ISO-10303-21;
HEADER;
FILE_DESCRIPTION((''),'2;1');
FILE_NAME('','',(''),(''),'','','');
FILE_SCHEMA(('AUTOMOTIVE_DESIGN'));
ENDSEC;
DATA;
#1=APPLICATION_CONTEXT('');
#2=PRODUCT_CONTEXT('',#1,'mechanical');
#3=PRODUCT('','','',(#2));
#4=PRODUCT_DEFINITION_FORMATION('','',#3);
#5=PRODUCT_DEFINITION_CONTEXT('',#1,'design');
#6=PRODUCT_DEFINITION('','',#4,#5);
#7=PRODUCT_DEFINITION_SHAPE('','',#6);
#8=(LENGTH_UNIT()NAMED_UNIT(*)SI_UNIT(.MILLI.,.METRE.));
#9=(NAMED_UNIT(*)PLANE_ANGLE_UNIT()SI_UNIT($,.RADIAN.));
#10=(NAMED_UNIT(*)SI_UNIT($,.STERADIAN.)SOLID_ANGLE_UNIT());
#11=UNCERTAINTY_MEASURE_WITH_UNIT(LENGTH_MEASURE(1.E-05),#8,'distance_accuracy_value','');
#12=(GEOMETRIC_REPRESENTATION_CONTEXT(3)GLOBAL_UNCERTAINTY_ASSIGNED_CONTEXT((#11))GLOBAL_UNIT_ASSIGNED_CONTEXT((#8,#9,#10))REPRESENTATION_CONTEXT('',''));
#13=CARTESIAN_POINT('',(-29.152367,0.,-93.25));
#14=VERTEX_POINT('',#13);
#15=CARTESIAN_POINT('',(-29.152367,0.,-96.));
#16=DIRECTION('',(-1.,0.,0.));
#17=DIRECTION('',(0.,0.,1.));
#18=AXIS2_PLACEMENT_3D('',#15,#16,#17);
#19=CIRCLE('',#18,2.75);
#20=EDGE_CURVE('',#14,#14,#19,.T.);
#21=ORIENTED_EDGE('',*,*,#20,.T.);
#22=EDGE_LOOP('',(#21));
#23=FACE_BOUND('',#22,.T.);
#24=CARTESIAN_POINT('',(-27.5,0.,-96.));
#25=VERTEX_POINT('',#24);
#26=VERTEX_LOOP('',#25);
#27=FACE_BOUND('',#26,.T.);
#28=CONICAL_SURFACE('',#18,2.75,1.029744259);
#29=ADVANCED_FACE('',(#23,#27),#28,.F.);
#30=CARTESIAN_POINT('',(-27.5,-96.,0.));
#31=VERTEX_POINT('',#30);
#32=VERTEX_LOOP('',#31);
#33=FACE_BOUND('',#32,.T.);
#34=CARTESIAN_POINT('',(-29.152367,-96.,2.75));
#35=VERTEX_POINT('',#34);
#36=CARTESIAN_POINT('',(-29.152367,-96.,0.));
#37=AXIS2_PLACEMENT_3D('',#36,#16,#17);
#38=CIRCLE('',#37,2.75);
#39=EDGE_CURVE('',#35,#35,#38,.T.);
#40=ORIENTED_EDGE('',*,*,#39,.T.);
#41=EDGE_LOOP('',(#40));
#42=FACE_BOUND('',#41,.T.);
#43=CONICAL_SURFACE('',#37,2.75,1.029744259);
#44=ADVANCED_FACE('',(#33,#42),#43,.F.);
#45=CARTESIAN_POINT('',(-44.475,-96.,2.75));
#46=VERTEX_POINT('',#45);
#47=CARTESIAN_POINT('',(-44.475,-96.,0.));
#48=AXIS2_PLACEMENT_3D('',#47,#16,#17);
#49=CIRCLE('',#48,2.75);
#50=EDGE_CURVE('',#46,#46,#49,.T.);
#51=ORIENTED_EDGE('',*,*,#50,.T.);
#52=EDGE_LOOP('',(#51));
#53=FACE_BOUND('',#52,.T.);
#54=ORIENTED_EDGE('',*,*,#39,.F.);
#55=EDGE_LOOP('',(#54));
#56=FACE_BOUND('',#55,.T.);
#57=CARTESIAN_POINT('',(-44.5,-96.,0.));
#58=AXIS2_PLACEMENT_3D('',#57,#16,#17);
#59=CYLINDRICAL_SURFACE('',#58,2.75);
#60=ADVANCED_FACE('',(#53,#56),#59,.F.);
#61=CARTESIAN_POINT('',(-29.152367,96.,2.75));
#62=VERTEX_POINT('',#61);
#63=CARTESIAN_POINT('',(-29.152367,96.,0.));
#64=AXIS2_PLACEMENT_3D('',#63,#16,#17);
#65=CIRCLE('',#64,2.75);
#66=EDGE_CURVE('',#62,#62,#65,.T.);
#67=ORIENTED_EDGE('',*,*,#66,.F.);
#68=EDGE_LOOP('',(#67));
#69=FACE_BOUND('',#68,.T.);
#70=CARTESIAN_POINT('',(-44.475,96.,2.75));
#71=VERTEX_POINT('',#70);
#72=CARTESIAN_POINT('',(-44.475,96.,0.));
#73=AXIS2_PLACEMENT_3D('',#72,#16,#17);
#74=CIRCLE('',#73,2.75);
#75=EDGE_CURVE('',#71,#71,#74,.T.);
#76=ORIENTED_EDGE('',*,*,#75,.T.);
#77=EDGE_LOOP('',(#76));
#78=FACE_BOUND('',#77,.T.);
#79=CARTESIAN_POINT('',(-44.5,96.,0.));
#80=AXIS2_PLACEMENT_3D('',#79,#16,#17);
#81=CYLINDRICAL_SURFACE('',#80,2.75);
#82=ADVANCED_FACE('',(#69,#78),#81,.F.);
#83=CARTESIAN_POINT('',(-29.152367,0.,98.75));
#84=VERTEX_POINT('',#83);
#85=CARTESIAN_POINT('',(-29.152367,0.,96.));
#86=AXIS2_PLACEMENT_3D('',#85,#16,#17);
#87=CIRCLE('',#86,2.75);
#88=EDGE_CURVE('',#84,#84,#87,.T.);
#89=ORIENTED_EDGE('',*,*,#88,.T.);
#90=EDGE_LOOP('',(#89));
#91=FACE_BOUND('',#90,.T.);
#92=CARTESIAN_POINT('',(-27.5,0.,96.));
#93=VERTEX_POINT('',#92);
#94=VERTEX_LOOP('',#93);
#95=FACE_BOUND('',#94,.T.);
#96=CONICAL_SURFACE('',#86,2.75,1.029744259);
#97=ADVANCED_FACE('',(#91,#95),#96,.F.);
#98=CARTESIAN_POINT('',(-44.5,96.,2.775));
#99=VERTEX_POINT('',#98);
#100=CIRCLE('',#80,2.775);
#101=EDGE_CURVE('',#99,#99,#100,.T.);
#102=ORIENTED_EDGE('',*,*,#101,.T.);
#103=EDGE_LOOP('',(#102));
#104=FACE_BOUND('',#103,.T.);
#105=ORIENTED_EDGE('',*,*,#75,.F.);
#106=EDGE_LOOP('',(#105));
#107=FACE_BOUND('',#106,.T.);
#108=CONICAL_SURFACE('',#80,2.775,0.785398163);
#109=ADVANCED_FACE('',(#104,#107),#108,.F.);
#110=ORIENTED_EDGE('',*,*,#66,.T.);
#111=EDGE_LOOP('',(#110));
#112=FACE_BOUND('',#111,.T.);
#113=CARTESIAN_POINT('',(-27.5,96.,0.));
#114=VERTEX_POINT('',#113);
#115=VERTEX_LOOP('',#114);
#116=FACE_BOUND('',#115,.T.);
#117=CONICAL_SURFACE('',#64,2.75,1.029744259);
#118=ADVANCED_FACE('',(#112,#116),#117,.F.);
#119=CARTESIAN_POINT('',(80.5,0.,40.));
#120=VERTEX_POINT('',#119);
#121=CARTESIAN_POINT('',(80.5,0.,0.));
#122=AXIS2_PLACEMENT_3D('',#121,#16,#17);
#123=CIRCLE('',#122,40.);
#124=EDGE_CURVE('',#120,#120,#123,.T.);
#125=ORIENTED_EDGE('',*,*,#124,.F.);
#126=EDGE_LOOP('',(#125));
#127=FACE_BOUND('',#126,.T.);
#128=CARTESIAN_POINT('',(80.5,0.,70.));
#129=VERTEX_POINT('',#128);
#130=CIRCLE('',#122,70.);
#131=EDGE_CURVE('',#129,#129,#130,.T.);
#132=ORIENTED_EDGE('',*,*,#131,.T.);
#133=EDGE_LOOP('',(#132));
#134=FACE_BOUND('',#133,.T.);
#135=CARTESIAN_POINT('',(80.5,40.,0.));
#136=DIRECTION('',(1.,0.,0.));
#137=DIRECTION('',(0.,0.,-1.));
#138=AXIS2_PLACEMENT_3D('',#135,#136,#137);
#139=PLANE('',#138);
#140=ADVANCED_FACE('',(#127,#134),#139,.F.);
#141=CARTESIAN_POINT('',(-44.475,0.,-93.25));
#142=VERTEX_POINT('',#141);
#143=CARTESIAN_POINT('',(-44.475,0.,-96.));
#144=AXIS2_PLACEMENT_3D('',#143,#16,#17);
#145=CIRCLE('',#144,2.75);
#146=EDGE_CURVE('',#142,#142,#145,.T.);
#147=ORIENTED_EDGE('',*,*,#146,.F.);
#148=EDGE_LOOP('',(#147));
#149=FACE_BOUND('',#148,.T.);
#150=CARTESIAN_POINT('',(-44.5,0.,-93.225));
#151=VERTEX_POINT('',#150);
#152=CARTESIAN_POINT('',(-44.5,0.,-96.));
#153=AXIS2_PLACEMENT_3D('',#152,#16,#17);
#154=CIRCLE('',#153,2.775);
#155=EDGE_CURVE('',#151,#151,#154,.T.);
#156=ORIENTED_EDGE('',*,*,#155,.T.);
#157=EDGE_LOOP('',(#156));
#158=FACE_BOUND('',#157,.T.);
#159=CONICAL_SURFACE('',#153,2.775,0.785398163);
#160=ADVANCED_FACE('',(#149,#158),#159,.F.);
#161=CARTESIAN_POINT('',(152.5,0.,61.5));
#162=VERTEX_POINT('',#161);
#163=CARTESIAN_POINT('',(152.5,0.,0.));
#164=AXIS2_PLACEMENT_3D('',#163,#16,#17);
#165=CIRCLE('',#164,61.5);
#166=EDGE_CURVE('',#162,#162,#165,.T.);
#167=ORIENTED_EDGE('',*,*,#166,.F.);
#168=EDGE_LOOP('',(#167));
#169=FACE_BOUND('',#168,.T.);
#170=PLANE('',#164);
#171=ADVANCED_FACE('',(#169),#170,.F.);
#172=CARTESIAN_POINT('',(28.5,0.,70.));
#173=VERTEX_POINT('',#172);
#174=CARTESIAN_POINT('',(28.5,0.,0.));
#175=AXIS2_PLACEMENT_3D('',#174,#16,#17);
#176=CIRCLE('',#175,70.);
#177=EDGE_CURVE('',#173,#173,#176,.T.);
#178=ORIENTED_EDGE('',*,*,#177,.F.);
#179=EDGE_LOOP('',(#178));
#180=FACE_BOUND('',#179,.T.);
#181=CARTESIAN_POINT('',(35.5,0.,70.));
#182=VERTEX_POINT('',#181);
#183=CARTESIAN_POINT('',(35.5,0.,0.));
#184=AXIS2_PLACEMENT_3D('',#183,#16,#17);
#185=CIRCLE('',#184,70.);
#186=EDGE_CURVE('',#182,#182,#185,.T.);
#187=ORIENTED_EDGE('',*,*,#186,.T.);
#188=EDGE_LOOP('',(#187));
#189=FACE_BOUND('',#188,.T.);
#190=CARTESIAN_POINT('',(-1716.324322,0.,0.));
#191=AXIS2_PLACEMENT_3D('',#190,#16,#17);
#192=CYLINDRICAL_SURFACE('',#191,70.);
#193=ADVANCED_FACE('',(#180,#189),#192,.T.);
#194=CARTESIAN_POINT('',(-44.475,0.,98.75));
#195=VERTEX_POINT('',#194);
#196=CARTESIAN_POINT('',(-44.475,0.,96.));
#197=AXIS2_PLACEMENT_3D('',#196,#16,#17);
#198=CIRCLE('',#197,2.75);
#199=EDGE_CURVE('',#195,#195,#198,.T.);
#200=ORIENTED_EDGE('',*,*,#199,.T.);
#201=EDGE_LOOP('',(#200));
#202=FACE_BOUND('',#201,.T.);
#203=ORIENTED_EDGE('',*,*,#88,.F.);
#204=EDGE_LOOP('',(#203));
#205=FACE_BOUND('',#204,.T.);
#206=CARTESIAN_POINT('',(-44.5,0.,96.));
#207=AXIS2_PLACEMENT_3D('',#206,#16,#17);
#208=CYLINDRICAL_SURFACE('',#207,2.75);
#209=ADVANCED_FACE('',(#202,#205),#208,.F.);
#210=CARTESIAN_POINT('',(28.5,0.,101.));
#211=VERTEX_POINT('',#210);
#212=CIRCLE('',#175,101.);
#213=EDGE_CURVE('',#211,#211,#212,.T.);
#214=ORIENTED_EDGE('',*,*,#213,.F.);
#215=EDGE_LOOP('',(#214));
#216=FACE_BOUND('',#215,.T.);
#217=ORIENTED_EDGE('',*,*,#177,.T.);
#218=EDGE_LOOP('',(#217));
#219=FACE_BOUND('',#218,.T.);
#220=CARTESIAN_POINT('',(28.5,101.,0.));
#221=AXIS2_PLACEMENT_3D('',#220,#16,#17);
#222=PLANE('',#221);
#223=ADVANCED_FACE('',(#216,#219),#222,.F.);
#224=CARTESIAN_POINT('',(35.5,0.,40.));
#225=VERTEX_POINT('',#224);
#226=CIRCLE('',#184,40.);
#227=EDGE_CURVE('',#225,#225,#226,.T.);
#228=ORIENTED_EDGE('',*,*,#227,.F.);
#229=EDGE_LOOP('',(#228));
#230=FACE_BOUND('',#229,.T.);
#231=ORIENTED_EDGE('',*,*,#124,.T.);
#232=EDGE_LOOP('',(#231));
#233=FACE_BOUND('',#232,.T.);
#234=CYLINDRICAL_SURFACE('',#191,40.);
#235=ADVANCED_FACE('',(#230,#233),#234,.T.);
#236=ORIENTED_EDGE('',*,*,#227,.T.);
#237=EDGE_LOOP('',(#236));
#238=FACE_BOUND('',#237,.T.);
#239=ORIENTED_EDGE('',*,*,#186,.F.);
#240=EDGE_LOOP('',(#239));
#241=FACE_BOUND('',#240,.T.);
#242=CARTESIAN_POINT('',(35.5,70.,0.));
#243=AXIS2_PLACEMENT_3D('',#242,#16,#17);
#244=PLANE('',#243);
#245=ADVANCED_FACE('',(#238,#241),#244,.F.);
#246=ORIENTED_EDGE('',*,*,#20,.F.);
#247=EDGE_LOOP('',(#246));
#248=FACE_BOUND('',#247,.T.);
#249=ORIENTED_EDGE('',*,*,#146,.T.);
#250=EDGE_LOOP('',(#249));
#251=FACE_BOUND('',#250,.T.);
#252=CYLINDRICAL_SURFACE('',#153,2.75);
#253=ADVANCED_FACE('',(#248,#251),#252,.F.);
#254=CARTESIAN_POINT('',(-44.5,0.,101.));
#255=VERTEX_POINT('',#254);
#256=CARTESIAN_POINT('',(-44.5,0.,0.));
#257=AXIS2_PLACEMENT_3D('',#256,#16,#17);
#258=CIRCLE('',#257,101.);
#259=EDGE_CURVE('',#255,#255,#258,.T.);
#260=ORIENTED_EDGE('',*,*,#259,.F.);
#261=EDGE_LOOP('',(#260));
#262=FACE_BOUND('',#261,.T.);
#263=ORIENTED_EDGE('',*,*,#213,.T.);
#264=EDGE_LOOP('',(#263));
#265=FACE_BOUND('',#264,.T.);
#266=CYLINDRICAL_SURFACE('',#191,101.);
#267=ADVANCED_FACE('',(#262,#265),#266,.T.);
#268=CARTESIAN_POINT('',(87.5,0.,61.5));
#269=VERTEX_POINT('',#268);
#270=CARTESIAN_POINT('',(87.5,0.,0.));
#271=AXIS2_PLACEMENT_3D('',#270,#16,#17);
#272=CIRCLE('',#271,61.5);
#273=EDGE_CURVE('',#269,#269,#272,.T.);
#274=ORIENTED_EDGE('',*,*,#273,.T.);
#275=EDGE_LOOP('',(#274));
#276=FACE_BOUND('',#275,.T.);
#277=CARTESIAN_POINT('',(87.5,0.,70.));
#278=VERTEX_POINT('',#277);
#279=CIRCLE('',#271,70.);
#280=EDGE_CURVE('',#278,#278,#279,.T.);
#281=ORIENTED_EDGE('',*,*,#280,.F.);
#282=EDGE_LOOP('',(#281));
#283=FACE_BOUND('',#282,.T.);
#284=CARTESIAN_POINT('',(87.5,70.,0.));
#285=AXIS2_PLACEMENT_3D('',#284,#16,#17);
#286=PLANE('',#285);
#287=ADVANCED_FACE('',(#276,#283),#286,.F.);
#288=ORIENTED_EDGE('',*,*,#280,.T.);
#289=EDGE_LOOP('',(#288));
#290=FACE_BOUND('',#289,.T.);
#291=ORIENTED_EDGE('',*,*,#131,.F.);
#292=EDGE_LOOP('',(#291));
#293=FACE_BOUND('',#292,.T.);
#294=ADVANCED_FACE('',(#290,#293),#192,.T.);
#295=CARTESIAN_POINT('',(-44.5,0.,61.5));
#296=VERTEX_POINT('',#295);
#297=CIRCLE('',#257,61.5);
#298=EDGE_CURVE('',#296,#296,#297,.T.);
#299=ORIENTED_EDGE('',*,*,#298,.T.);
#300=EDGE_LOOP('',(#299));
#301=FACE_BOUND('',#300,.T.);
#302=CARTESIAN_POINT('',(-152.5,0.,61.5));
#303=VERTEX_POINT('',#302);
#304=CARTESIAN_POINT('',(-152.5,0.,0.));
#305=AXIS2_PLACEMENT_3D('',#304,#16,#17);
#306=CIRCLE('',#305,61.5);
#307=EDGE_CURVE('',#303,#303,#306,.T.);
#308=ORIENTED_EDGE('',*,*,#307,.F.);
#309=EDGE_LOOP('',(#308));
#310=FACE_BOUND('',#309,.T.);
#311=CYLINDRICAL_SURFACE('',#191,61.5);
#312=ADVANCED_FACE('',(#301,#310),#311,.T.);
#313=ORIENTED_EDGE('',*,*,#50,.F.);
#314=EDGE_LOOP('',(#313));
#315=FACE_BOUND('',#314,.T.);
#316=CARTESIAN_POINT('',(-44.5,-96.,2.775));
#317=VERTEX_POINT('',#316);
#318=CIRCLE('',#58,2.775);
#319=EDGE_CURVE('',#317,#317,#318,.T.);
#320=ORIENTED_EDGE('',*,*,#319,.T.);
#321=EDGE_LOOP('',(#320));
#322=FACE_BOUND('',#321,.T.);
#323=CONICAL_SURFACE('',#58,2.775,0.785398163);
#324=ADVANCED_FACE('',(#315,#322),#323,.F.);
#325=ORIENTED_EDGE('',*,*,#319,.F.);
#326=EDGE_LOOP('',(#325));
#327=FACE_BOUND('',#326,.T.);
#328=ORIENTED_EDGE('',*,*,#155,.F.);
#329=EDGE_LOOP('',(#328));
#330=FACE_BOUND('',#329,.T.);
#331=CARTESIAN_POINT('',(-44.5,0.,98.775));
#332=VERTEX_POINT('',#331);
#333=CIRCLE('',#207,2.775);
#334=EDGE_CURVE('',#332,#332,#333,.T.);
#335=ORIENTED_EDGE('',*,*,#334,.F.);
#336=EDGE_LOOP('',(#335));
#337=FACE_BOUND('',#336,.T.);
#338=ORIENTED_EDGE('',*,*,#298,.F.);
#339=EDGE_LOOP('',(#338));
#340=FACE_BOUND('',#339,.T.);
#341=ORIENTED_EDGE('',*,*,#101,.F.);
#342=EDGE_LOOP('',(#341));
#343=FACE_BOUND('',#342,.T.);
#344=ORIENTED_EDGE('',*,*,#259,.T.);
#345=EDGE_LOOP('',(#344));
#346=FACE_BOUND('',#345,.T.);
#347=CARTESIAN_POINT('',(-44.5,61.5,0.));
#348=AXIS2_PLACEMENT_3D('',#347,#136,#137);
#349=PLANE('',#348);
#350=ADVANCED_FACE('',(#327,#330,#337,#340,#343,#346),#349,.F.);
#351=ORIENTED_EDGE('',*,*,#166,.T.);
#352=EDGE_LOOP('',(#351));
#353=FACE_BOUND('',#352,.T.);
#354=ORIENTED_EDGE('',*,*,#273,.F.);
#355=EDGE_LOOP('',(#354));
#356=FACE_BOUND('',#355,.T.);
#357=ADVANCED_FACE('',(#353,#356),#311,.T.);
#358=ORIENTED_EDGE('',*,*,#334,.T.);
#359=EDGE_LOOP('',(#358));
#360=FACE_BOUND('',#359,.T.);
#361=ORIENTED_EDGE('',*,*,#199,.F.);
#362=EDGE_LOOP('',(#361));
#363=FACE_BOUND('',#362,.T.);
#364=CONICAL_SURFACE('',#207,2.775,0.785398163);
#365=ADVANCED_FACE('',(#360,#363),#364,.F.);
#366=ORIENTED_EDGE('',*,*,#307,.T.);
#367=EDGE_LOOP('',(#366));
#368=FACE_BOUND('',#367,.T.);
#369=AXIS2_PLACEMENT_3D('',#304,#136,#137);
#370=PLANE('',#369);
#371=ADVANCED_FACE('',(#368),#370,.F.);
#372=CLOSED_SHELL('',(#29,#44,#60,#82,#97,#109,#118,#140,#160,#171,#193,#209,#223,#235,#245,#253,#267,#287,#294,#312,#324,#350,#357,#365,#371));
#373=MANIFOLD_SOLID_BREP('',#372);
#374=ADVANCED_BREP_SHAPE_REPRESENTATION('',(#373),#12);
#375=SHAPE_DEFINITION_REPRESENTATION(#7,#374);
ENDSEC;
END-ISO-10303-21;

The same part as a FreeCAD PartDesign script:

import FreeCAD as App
import Part
import Sketcher

V = App.Vector


def add_polygon(sketch, points):
    """Adds a closed chain of lines whose ends are joined by coincident constraints."""
    first, n = sketch.GeometryCount, len(points)
    for a, b in zip(points, points[1:] + points[:1]):
        sketch.addGeometry(Part.LineSegment(App.Vector(*a, 0), App.Vector(*b, 0)), False)
    for i in range(n):
        sketch.addConstraint(Sketcher.Constraint("Coincident", first + i, 2, first + (i + 1) % n, 1))

doc = App.newDocument("Part")
body = doc.addObject("PartDesign::Body", "Body")

# Sketch on XY plane
sketch1 = body.newObject("Sketcher::SketchObject", "Sketch")
sketch1.AttachmentSupport = (doc.getObject("XY_Plane"), [""])
sketch1.MapMode = "FlatFace"
add_polygon(sketch1, [(-152, 0), (152, 0), (152, 62), (88, 62), (88, 70), (80, 70), (80, 40), (36, 40), (36, 70), (28, 70), (28, 101), (-44, 101), (-44, 62), (-152, 62)])  # lines 0-13
sketch1.addConstraint(Sketcher.Constraint("Horizontal", 0))
sketch1.addConstraint(Sketcher.Constraint("Vertical", 1))
sketch1.addConstraint(Sketcher.Constraint("Horizontal", 2))
sketch1.addConstraint(Sketcher.Constraint("Vertical", 3))
sketch1.addConstraint(Sketcher.Constraint("Horizontal", 4))
sketch1.addConstraint(Sketcher.Constraint("Vertical", 5))
sketch1.addConstraint(Sketcher.Constraint("Horizontal", 6))
sketch1.addConstraint(Sketcher.Constraint("Vertical", 7))
sketch1.addConstraint(Sketcher.Constraint("Horizontal", 8))
sketch1.addConstraint(Sketcher.Constraint("Vertical", 9))
sketch1.addConstraint(Sketcher.Constraint("Horizontal", 10))
sketch1.addConstraint(Sketcher.Constraint("Vertical", 11))
sketch1.addConstraint(Sketcher.Constraint("Horizontal", 12))
sketch1.addConstraint(Sketcher.Constraint("Vertical", 13))
sketch1.addConstraint(Sketcher.Constraint("Symmetric", 0, 2, 13, 2, -1, 1))
sketch1.addConstraint(Sketcher.Constraint("Horizontal", 4, 2, 7, 2))
sketch1.addConstraint(Sketcher.Constraint("Horizontal", 2, 2, 11, 2))
sketch1.addConstraint(Sketcher.Constraint("Equal", 4, 8))
sketch1.addConstraint(Sketcher.Constraint("DistanceX", 0, 1, 0, 2, 305.0))
sketch1.addConstraint(Sketcher.Constraint("DistanceX", 2, 2, 2, 1, 65.0))
sketch1.addConstraint(Sketcher.Constraint("DistanceX", 4, 2, 4, 1, 7.0))
sketch1.addConstraint(Sketcher.Constraint("DistanceX", 6, 2, 6, 1, 45.0))
sketch1.addConstraint(Sketcher.Constraint("DistanceX", 10, 2, 10, 1, 73.0))
sketch1.addConstraint(Sketcher.Constraint("DistanceY", 5, 2, 5, 1, 30.0))
sketch1.addConstraint(Sketcher.Constraint("DistanceY", 9, 1, 9, 2, 31.0))
sketch1.addConstraint(Sketcher.Constraint("DistanceY", 1, 1, 1, 2, 61.5))
sketch1.addConstraint(Sketcher.Constraint("DistanceY", 3, 1, 3, 2, 8.5))
revolution = body.newObject("PartDesign::Revolution", "Revolution")
revolution.Profile = sketch1
revolution.ReferenceAxis = (sketch1, ["H_Axis"])
revolution.Angle = 360

# Sketch on YZ plane
sketch2 = body.newObject("Sketcher::SketchObject", "Sketch001")
sketch2.AttachmentSupport = (doc.getObject("YZ_Plane"), [""])
sketch2.MapMode = "FlatFace"
sketch2.AttachmentOffset = App.Placement(V(0, 0, -44.5), App.Rotation())
sketch2.addGeometry(Part.Circle(V(96, 0, 0), V(0, 0, 1), 2.8), False)
sketch2.addGeometry(Part.Circle(V(0, 96, 0), V(0, 0, 1), 2.8), False)
sketch2.addGeometry(Part.Circle(V(-96, 0, 0), V(0, 0, 1), 2.8), False)
sketch2.addGeometry(Part.Circle(V(0, -96, 0), V(0, 0, 1), 2.8), False)
sketch2.addConstraint(Sketcher.Constraint("Equal", 0, 1))
sketch2.addConstraint(Sketcher.Constraint("Equal", 1, 2))
sketch2.addConstraint(Sketcher.Constraint("Equal", 2, 3))
sketch2.addConstraint(Sketcher.Constraint("Symmetric", 0, 3, 2, 3, -1, 1))
sketch2.addConstraint(Sketcher.Constraint("Symmetric", 1, 3, 3, 3, -1, 1))
sketch2.addConstraint(Sketcher.Constraint("PointOnObject", 0, 3, -1))
sketch2.addConstraint(Sketcher.Constraint("PointOnObject", 1, 3, -2))
sketch2.addConstraint(Sketcher.Constraint("Diameter", 0, 5.5))
sketch2.addConstraint(Sketcher.Constraint("DistanceX", -1, 1, 0, 3, 96.0))
sketch2.addConstraint(Sketcher.Constraint("DistanceY", -1, 1, 1, 3, 96.0))
doc.recompute()
hole = body.newObject("PartDesign::Hole", "Hole")
hole.Profile = sketch2
hole.ThreadType = "None"
hole.Diameter = 5.5
hole.DepthType = "Dimension"
hole.Depth = 15.347633
hole.DrillPoint = "Angled"
hole.DrillPointAngle = 118
hole.HoleCutType = "Countersink"
hole.HoleCutDiameter = 5.55
hole.HoleCutCountersinkAngle = 90
hole.Reversed = True

doc.recompute()
